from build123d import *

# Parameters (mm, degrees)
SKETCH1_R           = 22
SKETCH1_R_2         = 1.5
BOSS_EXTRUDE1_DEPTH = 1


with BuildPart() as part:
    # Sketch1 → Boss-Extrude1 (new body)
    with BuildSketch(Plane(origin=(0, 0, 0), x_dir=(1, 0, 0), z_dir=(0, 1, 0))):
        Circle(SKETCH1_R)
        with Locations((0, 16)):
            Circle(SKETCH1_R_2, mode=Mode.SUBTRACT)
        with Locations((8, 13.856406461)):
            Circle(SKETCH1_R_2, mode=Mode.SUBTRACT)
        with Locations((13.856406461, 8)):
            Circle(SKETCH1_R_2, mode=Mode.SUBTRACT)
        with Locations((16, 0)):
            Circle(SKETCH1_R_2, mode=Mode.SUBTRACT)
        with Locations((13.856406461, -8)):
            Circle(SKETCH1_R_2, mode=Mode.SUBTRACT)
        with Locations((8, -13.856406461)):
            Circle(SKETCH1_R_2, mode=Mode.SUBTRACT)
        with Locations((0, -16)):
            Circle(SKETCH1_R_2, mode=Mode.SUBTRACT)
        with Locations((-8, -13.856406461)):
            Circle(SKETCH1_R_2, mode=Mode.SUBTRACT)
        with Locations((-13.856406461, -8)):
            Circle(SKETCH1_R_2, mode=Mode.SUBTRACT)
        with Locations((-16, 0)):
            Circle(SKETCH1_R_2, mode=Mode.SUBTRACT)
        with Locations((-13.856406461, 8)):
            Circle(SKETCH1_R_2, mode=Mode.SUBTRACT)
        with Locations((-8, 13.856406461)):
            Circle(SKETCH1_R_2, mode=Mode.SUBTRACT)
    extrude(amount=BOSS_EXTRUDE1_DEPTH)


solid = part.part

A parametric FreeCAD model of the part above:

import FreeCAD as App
import Part
import Sketcher

V = App.Vector

doc = App.newDocument("Part")
body = doc.addObject("PartDesign::Body", "Body")

sketch1 = doc.addObject("Sketcher::SketchObject", "Sketch")
body.addObject(sketch1)
sketch1.AttachmentSupport = (doc.XZ_Plane, [""])
sketch1.MapMode = "FlatFace"
sketch1.addGeometry([
    Part.Circle(V(0, 0, 0), V(0, 0, 1), 22),
    Part.Circle(V(-8, 13.856406, 0), V(0, 0, 1), 1.5),
    Part.Circle(V(-13.856406, 8, 0), V(0, 0, 1), 1.5),
    Part.Circle(V(0, 16, 0), V(0, 0, 1), 1.5),
    Part.Circle(V(8, 13.856406, 0), V(0, 0, 1), 1.5),
    Part.Circle(V(13.856406, 8, 0), V(0, 0, 1), 1.5),
    Part.Circle(V(-16, 0, 0), V(0, 0, 1), 1.5),
    Part.Circle(V(-13.856406, -8, 0), V(0, 0, 1), 1.5),
    Part.Circle(V(-8, -13.856406, 0), V(0, 0, 1), 1.5),
    Part.Circle(V(16, 0, 0), V(0, 0, 1), 1.5),
    Part.Circle(V(13.856406, -8, 0), V(0, 0, 1), 1.5),
    Part.Circle(V(0, -16, 0), V(0, 0, 1), 1.5),
    Part.Circle(V(8, -13.856406, 0), V(0, 0, 1), 1.5),
], False)
sketch1.addConstraint([
    Sketcher.Constraint("Coincident", 0, 3, -1, 1),
    Sketcher.Constraint("Equal", 1, 2),
    Sketcher.Constraint("Equal", 2, 3),
    Sketcher.Constraint("Equal", 3, 4),
    Sketcher.Constraint("Equal", 4, 5),
    Sketcher.Constraint("Equal", 5, 6),
    Sketcher.Constraint("Equal", 6, 7),
    Sketcher.Constraint("Equal", 7, 8),
    Sketcher.Constraint("Equal", 8, 9),
    Sketcher.Constraint("Equal", 9, 10),
    Sketcher.Constraint("Equal", 10, 11),
    Sketcher.Constraint("Equal", 11, 12),
    Sketcher.Constraint("Symmetric", 5, 3, 7, 3, -1, 1),
    Sketcher.Constraint("Symmetric", 4, 3, 8, 3, -1, 1),
    Sketcher.Constraint("Symmetric", 6, 3, 9, 3, -1, 1),
    Sketcher.Constraint("Symmetric", 2, 3, 10, 3, -1, 1),
    Sketcher.Constraint("Symmetric", 3, 3, 11, 3, -1, 1),
    Sketcher.Constraint("Symmetric", 1, 3, 12, 3, -1, 1),
    Sketcher.Constraint("Symmetric", 1, 3, 4, 3, -2),
    Sketcher.Constraint("Symmetric", 2, 3, 5, 3, -2),
    Sketcher.Constraint("PointOnObject", 3, 3, -2),
    Sketcher.Constraint("PointOnObject", 6, 3, -1),
    Sketcher.Constraint("Diameter", 0, 44.0),
    Sketcher.Constraint("Diameter", 1, 3.0),
    Sketcher.Constraint("DistanceX", 1, 3, -1, 1, 8.0),
    Sketcher.Constraint("DistanceY", -1, 1, 2, 3, 8.0),
    Sketcher.Constraint("DistanceY", -1, 1, 3, 3, 16.0),
    Sketcher.Constraint("DistanceX", 6, 3, -1, 1, 16.0),
    Sketcher.Constraint("DistanceY", -1, 1, 1, 3, 13.856406),
    Sketcher.Constraint("DistanceX", 2, 3, -1, 1, 13.856406),
])
pad1 = doc.addObject("PartDesign::Pad", "Pad")
body.addObject(pad1)
pad1.Profile = sketch1
pad1.Length = 1
pad1.Reversed = True

doc.recompute()
